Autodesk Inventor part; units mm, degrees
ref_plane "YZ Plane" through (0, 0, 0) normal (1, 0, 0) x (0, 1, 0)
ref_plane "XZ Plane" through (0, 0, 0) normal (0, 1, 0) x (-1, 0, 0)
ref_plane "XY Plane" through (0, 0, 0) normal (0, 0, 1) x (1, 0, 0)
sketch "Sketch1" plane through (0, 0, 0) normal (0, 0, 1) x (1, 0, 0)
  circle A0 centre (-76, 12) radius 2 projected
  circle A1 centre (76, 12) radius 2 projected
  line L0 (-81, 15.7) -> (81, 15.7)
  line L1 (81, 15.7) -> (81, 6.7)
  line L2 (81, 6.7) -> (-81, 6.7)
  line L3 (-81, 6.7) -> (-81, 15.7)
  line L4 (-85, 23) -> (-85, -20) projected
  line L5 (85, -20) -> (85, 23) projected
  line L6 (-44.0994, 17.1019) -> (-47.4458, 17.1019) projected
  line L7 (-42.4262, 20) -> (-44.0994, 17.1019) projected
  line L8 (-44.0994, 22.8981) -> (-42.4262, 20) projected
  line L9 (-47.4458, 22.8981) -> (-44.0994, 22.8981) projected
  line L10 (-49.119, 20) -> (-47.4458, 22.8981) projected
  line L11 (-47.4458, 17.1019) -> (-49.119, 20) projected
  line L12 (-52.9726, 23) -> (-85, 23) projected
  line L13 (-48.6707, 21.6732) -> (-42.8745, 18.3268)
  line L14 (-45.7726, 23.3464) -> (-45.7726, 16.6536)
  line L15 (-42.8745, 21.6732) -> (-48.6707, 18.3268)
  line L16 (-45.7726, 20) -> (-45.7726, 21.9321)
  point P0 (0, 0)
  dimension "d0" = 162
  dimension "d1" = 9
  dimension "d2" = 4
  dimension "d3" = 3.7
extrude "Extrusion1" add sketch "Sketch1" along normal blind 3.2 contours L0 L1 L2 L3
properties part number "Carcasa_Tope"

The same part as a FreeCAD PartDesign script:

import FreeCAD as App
import Part
import Sketcher
Q = App.Units.Quantity

doc = App.newDocument("Part")
body = doc.addObject("PartDesign::Body", "Body")

# Sketch on XY plane
sketch1 = doc.addObject("Sketcher::SketchObject", "Sketch")
body.addObject(sketch1)
sketch1.AttachmentSupport = (doc.XY_Plane, [""])
sketch1.MapMode = "FlatFace"
sketch1.addGeometry(Part.LineSegment(App.Vector(81, 15.7, 0), App.Vector(-81, 15.7, 0)), False)
sketch1.addGeometry(Part.LineSegment(App.Vector(-81, 15.7, 0), App.Vector(-81, 6.7, 0)), False)
sketch1.addGeometry(Part.LineSegment(App.Vector(-81, 6.7, 0), App.Vector(81, 6.7, 0)), False)
sketch1.addGeometry(Part.LineSegment(App.Vector(81, 6.7, 0), App.Vector(81, 15.7, 0)), False)
sketch1.addGeometry(Part.Circle(App.Vector(-76, 12, 0), App.Vector(0, 0, 1), 2), False)
sketch1.addGeometry(Part.Circle(App.Vector(76, 12, 0), App.Vector(0, 0, 1), 2), False)
sketch1.addConstraint(Sketcher.Constraint("Coincident", 0, 2, 1, 1))
sketch1.addConstraint(Sketcher.Constraint("Coincident", 1, 2, 2, 1))
sketch1.addConstraint(Sketcher.Constraint("Coincident", 2, 2, 3, 1))
sketch1.addConstraint(Sketcher.Constraint("Coincident", 3, 2, 0, 1))
sketch1.addConstraint(Sketcher.Constraint("Horizontal", 0))
sketch1.addConstraint(Sketcher.Constraint("Vertical", 1))
sketch1.addConstraint(Sketcher.Constraint("Horizontal", 2))
sketch1.addConstraint(Sketcher.Constraint("Vertical", 3))
sketch1.addConstraint(Sketcher.Constraint("Equal", 4, 5))
sketch1.addConstraint(Sketcher.Constraint("Symmetric", 4, 3, 5, 3, -2))
sketch1.addConstraint(Sketcher.Constraint("Diameter", 4, Q("4 mm")))
sketch1.addConstraint(Sketcher.Constraint("DistanceX", 0, 2, 0, 1, Q("162 mm")))
sketch1.addConstraint(Sketcher.Constraint("DistanceY", 1, 2, 1, 1, Q("9 mm")))
sketch1.addConstraint(Sketcher.Constraint("DistanceY", 4, 3, 0, 2, Q("3.7 mm")))
sketch1.addConstraint(Sketcher.Constraint("DistanceX", 4, 3, -1, 1, Q("76 mm")))
sketch1.addConstraint(Sketcher.Constraint("DistanceY", -1, 1, 4, 3, Q("12 mm")))
sketch1.addConstraint(Sketcher.Constraint("DistanceX", 0, 2, -1, 1, Q("81 mm")))
pad1 = doc.addObject("PartDesign::Pad", "Pad")
body.addObject(pad1)
pad1.Profile = sketch1
pad1.Length = 3.2

doc.recompute()
